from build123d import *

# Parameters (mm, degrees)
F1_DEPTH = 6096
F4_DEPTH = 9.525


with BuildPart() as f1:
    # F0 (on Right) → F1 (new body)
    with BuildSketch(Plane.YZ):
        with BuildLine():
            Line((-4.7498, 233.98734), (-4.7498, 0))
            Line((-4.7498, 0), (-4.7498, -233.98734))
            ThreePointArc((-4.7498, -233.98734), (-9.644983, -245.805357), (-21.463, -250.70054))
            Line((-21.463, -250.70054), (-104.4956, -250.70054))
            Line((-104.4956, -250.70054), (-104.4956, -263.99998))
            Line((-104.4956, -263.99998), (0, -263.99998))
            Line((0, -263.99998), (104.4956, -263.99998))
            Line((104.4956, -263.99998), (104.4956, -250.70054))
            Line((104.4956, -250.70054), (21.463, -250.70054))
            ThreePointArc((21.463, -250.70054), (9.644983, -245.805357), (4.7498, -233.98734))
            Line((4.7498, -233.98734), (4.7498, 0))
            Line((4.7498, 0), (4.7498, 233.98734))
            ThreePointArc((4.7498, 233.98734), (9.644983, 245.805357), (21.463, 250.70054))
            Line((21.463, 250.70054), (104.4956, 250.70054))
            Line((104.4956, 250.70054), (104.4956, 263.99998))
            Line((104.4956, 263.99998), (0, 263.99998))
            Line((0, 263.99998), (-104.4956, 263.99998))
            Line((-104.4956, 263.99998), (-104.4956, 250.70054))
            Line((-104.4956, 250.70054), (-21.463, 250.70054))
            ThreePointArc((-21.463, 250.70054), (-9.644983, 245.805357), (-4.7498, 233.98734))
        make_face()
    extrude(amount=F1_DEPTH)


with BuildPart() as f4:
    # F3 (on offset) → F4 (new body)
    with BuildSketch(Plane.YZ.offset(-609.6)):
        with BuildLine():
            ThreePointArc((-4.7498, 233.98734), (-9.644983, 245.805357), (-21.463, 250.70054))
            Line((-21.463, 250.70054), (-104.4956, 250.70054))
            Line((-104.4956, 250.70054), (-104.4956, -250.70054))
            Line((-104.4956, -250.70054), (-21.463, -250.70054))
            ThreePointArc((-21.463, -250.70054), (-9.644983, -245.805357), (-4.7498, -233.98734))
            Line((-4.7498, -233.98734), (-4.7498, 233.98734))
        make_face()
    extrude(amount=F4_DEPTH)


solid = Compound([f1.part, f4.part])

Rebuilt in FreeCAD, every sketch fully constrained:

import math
import FreeCAD as App
import Part
import Sketcher
from FreeCAD import Vector
Q = App.Units.Quantity

doc = App.newDocument("Part")
params = doc.addObject("Spreadsheet::Sheet", "Params")
for row, (alias, value) in enumerate([
    ("sketch1_radius", "0.658 in"),
    ("sketch1_width", "3.269 in"),
    ("sketch1_width2", "8.228 in"),
    ("pad1_length", "240 in"),
    ("sketch2_radius", "0.658 in"),
    ("sketch2_width", "3.269 in"),
    ("pad2_length", "0.375 in"),
], start=1):
    params.set(f"A{row}", alias)
    params.set(f"B{row}", "=" + value)
    params.setAlias(f"B{row}", alias)

body = doc.addObject("PartDesign::Body", "Body")

sketch1 = body.newObject("Sketcher::SketchObject", "Sketch")
sketch1.AttachmentSupport = (doc.getObject("YZ_Plane"), [""])
sketch1.MapMode = "FlatFace"
sketch1.addGeometry([
    Part.LineSegment(Vector(-4.7498, 233.98734, 0), Vector(-4.7498, -233.98734, 0)),
    Part.ArcOfCircle(Part.Circle(Vector(-21.463, -233.98734, 0), Vector(0, 0, 1), 16.7132), math.radians(-89.999999), math.radians(-0.000001)),
    Part.LineSegment(Vector(-21.463, -250.70054, 0), Vector(-104.4956, -250.70054, 0)),
    Part.LineSegment(Vector(-104.4956, -250.70054, 0), Vector(-104.4956, -263.99998, 0)),
    Part.LineSegment(Vector(-104.4956, -263.99998, 0), Vector(104.4956, -263.99998, 0)),
    Part.LineSegment(Vector(104.4956, -263.99998, 0), Vector(104.4956, -250.70054, 0)),
    Part.LineSegment(Vector(104.4956, -250.70054, 0), Vector(21.463, -250.70054, 0)),
    Part.ArcOfCircle(Part.Circle(Vector(21.463, -233.98734, 0), Vector(0, 0, 1), 16.7132), math.radians(-179.999999), math.radians(-90.000001)),
    Part.LineSegment(Vector(4.7498, -233.98734, 0), Vector(4.7498, 233.98734, 0)),
    Part.ArcOfCircle(Part.Circle(Vector(21.463, 233.98734, 0), Vector(0, 0, 1), 16.7132), math.radians(90.000001), math.radians(179.999999)),
    Part.LineSegment(Vector(21.463, 250.70054, 0), Vector(104.4956, 250.70054, 0)),
    Part.LineSegment(Vector(104.4956, 250.70054, 0), Vector(104.4956, 263.99998, 0)),
    Part.LineSegment(Vector(104.4956, 263.99998, 0), Vector(-104.4956, 263.99998, 0)),
    Part.LineSegment(Vector(-104.4956, 263.99998, 0), Vector(-104.4956, 250.70054, 0)),
    Part.LineSegment(Vector(-104.4956, 250.70054, 0), Vector(-21.463, 250.70054, 0)),
    Part.ArcOfCircle(Part.Circle(Vector(-21.463, 233.98734, 0), Vector(0, 0, 1), 16.7132), math.radians(0.000001), math.radians(89.999999)),
], False)
sketch1.addConstraint([
    Sketcher.Constraint("Tangent", 0, 2, 1, 2),
    Sketcher.Constraint("Tangent", 1, 1, 2, 1),
    Sketcher.Constraint("Coincident", 2, 2, 3, 1),
    Sketcher.Constraint("Coincident", 3, 2, 4, 1),
    Sketcher.Constraint("Coincident", 4, 2, 5, 1),
    Sketcher.Constraint("Coincident", 5, 2, 6, 1),
    Sketcher.Constraint("Tangent", 6, 2, 7, 2),
    Sketcher.Constraint("Tangent", 7, 1, 8, 1),
    Sketcher.Constraint("Tangent", 8, 2, 9, 2),
    Sketcher.Constraint("Tangent", 9, 1, 10, 1),
    Sketcher.Constraint("Coincident", 10, 2, 11, 1),
    Sketcher.Constraint("Coincident", 11, 2, 12, 1),
    Sketcher.Constraint("Coincident", 12, 2, 13, 1),
    Sketcher.Constraint("Coincident", 13, 2, 14, 1),
    Sketcher.Constraint("Tangent", 14, 2, 15, 2),
    Sketcher.Constraint("Tangent", 15, 1, 0, 1),
    Sketcher.Constraint("Vertical", 0),
    Sketcher.Constraint("Horizontal", 2),
    Sketcher.Constraint("Vertical", 3),
    Sketcher.Constraint("Horizontal", 4),
    Sketcher.Constraint("Vertical", 5),
    Sketcher.Constraint("Horizontal", 6),
    Sketcher.Constraint("Vertical", 8),
    Sketcher.Constraint("Horizontal", 10),
    Sketcher.Constraint("Vertical", 11),
    Sketcher.Constraint("Horizontal", 12),
    Sketcher.Constraint("Vertical", 13),
    Sketcher.Constraint("Horizontal", 14),
    Sketcher.Constraint("Equal", 1, 7),
    Sketcher.Constraint("Equal", 7, 9),
    Sketcher.Constraint("Equal", 9, 15),
    Sketcher.Constraint("Symmetric", 1, 3, 9, 3, -1, 1),
    Sketcher.Constraint("Symmetric", 3, 2, 11, 2, -1, 1),
    Sketcher.Constraint("Symmetric", 5, 2, 13, 2, -1, 1),
    Sketcher.Constraint("Symmetric", 2, 2, 5, 2, -2),
    Sketcher.Constraint("Radius", 1, Q("0.658 in")),
    Sketcher.Constraint("DistanceX", 2, 2, 2, 1, Q("3.269 in")),
    Sketcher.Constraint("DistanceX", 4, 1, 4, 2, Q("8.228 in")),
    Sketcher.Constraint("DistanceY", 0, 2, 0, 1, Q("18.4242 in")),
    Sketcher.Constraint("DistanceY", 3, 2, 3, 1, Q("0.5236 in")),
])
sketch1.setExpression("Constraints[35]", "Params.sketch1_radius")
sketch1.setExpression("Constraints[36]", "Params.sketch1_width")
sketch1.setExpression("Constraints[37]", "Params.sketch1_width2")
pad1 = body.newObject("PartDesign::Pad", "Pad")
pad1.Profile = sketch1
pad1.setExpression("Length", "Params.pad1_length")
body2 = doc.addObject("PartDesign::Body", "Body001")

sketch2 = body2.newObject("Sketcher::SketchObject", "Sketch001")
sketch2.AttachmentSupport = (doc.getObject("YZ_Plane001"), [""])
sketch2.MapMode = "FlatFace"
sketch2.AttachmentOffset = App.Placement(Vector(0, 0, -24 * 25.4), App.Rotation())
sketch2.addGeometry([
    Part.ArcOfCircle(Part.Circle(Vector(-21.463, 233.98734, 0), Vector(0, 0, 1), 16.7132), math.radians(0.000001), math.radians(89.999999)),
    Part.LineSegment(Vector(-21.463, 250.70054, 0), Vector(-104.4956, 250.70054, 0)),
    Part.LineSegment(Vector(-104.4956, 250.70054, 0), Vector(-104.4956, -250.70054, 0)),
    Part.LineSegment(Vector(-104.4956, -250.70054, 0), Vector(-21.463, -250.70054, 0)),
    Part.ArcOfCircle(Part.Circle(Vector(-21.463, -233.98734, 0), Vector(0, 0, 1), 16.7132), math.radians(-89.999999), math.radians(-0.000001)),
    Part.LineSegment(Vector(-4.7498, -233.98734, 0), Vector(-4.7498, 233.98734, 0)),
], False)
sketch2.addConstraint([
    Sketcher.Constraint("Tangent", 0, 2, 1, 1),
    Sketcher.Constraint("Coincident", 1, 2, 2, 1),
    Sketcher.Constraint("Coincident", 2, 2, 3, 1),
    Sketcher.Constraint("Tangent", 3, 2, 4, 1),
    Sketcher.Constraint("Tangent", 4, 2, 5, 1),
    Sketcher.Constraint("Tangent", 5, 2, 0, 1),
    Sketcher.Constraint("Horizontal", 1),
    Sketcher.Constraint("Vertical", 2),
    Sketcher.Constraint("Horizontal", 3),
    Sketcher.Constraint("Vertical", 5),
    Sketcher.Constraint("Equal", 0, 4),
    Sketcher.Constraint("Radius", 0, Q("0.658 in")),
    Sketcher.Constraint("DistanceX", 1, 2, 1, 1, Q("3.269 in")),
    Sketcher.Constraint("DistanceY", 2, 2, 2, 1, Q("19.7402 in")),
    Sketcher.Constraint("DistanceX", 0, 3, -1, 1, Q("0.845 in")),
    Sketcher.Constraint("DistanceY", -1, 1, 0, 3, Q("9.2121 in")),
])
sketch2.setExpression("Constraints[11]", "Params.sketch2_radius")
sketch2.setExpression("Constraints[12]", "Params.sketch2_width")
pad2 = body2.newObject("PartDesign::Pad", "Pad001")
pad2.Profile = sketch2
pad2.setExpression("Length", "Params.pad2_length")

doc.recompute()
